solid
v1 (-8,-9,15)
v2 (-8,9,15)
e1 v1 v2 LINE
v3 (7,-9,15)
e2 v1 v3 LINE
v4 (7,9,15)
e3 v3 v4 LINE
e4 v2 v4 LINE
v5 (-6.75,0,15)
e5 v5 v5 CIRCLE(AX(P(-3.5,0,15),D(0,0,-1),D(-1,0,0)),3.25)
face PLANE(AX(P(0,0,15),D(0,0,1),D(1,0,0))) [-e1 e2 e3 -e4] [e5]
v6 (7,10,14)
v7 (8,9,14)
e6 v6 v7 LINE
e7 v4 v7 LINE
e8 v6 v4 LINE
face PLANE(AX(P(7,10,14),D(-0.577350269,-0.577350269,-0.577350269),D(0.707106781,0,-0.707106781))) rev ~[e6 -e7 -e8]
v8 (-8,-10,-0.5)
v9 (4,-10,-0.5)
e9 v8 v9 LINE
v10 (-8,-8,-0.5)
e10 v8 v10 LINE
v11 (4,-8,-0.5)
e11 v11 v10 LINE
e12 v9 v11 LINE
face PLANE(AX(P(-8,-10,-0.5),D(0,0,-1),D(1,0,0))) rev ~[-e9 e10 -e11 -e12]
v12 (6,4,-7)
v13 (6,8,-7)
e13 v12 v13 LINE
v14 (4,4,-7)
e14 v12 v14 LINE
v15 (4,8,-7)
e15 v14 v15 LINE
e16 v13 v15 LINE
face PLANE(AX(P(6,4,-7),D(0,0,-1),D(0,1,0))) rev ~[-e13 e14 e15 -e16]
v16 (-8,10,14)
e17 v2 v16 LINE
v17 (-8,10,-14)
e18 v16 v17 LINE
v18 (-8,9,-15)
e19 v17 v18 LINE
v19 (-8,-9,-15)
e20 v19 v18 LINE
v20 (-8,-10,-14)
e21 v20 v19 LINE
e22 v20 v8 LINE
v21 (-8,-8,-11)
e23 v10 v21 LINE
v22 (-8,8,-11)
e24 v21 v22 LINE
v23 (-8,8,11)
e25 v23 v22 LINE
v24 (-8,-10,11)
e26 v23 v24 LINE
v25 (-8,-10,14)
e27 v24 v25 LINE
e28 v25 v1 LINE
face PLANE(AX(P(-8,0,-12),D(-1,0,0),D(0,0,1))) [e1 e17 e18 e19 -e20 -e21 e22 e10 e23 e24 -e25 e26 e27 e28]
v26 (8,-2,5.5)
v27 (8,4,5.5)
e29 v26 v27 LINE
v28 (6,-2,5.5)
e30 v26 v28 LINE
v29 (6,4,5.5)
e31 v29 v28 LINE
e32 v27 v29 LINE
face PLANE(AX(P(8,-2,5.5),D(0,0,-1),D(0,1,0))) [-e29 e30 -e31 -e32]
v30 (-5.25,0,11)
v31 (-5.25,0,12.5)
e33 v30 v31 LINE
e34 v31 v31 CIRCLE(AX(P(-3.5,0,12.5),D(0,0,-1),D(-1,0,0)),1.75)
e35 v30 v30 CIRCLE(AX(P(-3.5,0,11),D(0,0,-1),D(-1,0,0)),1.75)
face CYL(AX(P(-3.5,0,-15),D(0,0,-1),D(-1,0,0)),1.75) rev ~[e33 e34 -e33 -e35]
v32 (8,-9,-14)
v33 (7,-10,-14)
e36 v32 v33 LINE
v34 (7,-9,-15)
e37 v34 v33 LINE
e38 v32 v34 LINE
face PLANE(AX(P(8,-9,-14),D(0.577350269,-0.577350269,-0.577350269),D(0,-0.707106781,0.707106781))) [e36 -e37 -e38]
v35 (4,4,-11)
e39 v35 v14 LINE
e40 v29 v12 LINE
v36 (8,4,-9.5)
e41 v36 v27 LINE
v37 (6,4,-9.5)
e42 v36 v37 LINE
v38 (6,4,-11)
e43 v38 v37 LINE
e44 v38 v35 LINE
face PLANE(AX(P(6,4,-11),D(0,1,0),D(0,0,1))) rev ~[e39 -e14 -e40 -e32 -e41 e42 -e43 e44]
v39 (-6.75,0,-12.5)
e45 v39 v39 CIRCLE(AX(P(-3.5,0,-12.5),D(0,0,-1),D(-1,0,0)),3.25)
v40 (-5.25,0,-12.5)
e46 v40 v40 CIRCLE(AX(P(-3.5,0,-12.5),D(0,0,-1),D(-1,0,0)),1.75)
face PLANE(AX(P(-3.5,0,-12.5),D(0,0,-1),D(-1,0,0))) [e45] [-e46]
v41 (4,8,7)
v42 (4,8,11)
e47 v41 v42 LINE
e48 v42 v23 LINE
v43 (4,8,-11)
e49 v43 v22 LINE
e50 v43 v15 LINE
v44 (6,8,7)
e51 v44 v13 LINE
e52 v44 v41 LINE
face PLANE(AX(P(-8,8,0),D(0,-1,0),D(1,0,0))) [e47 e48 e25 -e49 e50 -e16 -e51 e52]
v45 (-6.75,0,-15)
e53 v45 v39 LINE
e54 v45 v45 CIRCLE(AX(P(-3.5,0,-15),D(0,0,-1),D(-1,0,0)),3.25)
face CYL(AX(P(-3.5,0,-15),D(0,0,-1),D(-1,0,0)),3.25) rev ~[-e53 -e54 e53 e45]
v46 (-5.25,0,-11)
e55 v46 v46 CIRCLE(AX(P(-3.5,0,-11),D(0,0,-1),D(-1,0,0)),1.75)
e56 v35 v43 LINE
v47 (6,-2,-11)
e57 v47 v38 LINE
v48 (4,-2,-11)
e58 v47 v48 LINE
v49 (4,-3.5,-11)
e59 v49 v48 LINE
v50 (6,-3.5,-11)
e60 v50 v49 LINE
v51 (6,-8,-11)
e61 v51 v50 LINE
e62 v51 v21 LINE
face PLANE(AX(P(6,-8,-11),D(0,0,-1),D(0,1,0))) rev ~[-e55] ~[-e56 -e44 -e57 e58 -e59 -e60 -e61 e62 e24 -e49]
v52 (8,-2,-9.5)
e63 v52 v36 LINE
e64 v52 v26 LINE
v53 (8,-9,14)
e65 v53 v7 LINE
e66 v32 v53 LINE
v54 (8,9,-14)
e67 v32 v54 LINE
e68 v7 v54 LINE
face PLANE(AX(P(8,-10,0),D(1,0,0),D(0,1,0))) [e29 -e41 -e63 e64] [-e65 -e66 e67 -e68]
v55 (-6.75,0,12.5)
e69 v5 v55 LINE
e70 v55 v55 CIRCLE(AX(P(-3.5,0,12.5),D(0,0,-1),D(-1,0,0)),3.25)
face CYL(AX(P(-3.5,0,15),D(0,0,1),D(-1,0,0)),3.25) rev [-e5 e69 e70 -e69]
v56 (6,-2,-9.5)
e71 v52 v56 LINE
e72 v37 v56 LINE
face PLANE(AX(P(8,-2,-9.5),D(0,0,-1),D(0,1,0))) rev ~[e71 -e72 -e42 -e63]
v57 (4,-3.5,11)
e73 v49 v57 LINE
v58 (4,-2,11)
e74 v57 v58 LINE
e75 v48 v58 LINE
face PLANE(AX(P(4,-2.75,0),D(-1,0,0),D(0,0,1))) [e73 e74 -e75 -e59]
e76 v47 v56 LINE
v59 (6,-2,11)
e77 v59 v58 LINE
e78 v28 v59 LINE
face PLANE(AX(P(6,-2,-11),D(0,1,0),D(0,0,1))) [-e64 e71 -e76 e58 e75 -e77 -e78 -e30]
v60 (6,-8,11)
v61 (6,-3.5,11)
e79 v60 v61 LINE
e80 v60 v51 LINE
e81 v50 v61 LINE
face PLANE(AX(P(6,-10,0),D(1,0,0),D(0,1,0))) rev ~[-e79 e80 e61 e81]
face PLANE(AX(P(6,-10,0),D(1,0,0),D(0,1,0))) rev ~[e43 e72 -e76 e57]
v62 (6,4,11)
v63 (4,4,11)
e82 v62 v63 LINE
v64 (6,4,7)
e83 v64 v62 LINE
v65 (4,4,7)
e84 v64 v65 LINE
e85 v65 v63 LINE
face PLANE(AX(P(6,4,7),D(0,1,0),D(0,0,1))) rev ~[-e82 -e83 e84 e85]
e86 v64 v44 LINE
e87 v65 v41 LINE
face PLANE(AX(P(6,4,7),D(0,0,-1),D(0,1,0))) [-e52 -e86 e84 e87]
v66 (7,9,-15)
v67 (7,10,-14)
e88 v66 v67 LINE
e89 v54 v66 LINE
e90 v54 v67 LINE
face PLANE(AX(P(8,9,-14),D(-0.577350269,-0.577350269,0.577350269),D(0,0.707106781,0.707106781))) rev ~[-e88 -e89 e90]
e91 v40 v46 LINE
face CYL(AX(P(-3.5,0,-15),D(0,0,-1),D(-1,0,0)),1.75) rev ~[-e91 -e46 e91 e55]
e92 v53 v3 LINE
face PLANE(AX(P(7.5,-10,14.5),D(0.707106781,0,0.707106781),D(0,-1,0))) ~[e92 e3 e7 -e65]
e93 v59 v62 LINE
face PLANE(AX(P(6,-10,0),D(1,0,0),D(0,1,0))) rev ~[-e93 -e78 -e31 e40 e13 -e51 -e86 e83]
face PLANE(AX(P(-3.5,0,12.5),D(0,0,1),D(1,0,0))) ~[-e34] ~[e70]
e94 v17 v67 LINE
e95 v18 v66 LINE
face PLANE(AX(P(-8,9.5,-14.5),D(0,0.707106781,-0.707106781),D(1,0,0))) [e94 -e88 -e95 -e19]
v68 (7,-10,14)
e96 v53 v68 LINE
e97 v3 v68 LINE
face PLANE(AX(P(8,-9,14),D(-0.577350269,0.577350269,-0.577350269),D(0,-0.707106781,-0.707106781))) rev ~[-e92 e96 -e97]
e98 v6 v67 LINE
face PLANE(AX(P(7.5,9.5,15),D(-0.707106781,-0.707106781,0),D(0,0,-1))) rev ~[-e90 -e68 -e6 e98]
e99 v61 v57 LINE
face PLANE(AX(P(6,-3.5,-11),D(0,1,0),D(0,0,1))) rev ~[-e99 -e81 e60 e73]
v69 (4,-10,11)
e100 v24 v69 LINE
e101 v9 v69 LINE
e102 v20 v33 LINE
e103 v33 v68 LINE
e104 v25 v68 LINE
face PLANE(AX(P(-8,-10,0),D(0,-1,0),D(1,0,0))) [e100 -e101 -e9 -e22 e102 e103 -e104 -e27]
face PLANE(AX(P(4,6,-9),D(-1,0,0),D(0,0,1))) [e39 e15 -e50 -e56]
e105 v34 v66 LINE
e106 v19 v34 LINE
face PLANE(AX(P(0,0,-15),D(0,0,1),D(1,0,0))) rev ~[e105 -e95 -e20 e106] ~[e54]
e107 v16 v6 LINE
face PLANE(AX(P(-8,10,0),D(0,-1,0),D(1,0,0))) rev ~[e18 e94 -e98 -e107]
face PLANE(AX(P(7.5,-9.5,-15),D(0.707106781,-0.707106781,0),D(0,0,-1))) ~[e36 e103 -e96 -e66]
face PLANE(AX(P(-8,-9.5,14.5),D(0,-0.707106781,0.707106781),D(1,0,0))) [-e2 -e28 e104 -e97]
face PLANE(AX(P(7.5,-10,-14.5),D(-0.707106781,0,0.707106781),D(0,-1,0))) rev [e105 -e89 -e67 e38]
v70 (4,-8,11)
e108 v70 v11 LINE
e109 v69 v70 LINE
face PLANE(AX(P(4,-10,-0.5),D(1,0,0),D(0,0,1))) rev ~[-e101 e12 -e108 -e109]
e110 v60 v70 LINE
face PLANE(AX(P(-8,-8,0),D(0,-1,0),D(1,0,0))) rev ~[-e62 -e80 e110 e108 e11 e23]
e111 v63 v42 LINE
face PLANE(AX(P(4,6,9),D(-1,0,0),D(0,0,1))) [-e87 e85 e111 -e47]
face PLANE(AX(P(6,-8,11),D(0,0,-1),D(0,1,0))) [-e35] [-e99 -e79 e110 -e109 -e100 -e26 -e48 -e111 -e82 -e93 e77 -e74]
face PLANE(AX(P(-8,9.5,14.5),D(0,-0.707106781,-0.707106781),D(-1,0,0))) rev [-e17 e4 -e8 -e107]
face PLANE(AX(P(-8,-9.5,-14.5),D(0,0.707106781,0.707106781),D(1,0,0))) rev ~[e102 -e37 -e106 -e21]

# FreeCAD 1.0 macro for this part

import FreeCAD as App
import Part
import Sketcher
Q = App.Units.Quantity


def edges_at(feature, points):
    """Names of the edges that pass closest to the given points."""
    edges = feature.Shape.Edges
    near = lambda p: min(range(len(edges)), key=lambda i: edges[i].distToShape(Part.Vertex(*p))[0])
    return sorted({f"Edge{near(p) + 1}" for p in points})


def faces_at(feature, points):
    """Names of the faces that lie closest to the given points."""
    faces = feature.Shape.Faces
    near = lambda p: min(range(len(faces)), key=lambda i: faces[i].distToShape(Part.Vertex(*p))[0])
    return sorted({f"Face{near(p) + 1}" for p in points})


def add_polygon(sketch, points):
    """Adds a closed chain of lines whose ends are joined by coincident constraints."""
    first, n = sketch.GeometryCount, len(points)
    for a, b in zip(points, points[1:] + points[:1]):
        sketch.addGeometry(Part.LineSegment(App.Vector(*a, 0), App.Vector(*b, 0)), False)
    for i in range(n):
        sketch.addConstraint(Sketcher.Constraint("Coincident", first + i, 2, first + (i + 1) % n, 1))

doc = App.newDocument("Part")
params = doc.addObject("Spreadsheet::Sheet", "Params")
for row, (alias, value) in enumerate([
    ("sketch1_width", "16 mm"),
    ("sketch1_height", "20 mm"),
    ("pad1_length", "30 mm"),
    ("thickness_wall", "2 mm"),
    ("sketch2_width", "16 mm"),
    ("sketch2_height", "2 mm"),
    ("pad2_length", "14 mm"),
    ("sketch3_width", "6 mm"),
    ("sketch3_height", "15 mm"),
    ("chamfer_size", "1 mm"),
    ("sketch4_width", "4 mm"),
    ("sketch4_height", "22 mm"),
    ("sketch4_width2", "1.5 mm"),
    ("pad3_length", "2 mm"),
    ("sketch5_width", "12 mm"),
    ("sketch5_height", "11.5 mm"),
    ("sketch6_diameter", "3.5 mm"),
    ("sketch7_diameter", "6.5 mm"),
    ("pocket4_length", "2.5 mm"),
], start=1):
    params.set(f"A{row}", alias)
    params.set(f"B{row}", "=" + value)
    params.setAlias(f"B{row}", alias)

body = doc.addObject("PartDesign::Body", "Body")

sketch1 = body.newObject("Sketcher::SketchObject", "Sketch")
sketch1.AttachmentSupport = (doc.getObject("XY_Plane"), [""])
sketch1.MapMode = "FlatFace"
add_polygon(sketch1, [(-8, 10), (-8, -10), (8, -10), (8, 10)])
sketch1.addConstraint([
    Sketcher.Constraint("Vertical", 0),
    Sketcher.Constraint("Horizontal", 1),
    Sketcher.Constraint("Vertical", 2),
    Sketcher.Constraint("Horizontal", 3),
    Sketcher.Constraint("Symmetric", 0, 2, 2, 2, -1, 1),
    Sketcher.Constraint("DistanceX", 1, 1, 1, 2, Q("16 mm")),
    Sketcher.Constraint("DistanceY", 0, 2, 0, 1, Q("20 mm")),
])
sketch1.setExpression("Constraints[9]", "Params.sketch1_width")
sketch1.setExpression("Constraints[10]", "Params.sketch1_height")
pad1 = body.newObject("PartDesign::Pad", "Pad")
pad1.Profile = sketch1
pad1.setExpression("Length", "Params.pad1_length")
pad1.Midplane = True
doc.recompute()

thickness = body.newObject("PartDesign::Thickness", "Thickness")
thickness.Base = (pad1, faces_at(pad1, [(-8, 0, 0)]))
thickness.setExpression("Value", "Params.thickness_wall")
thickness.Reversed = True
thickness.Join = "Intersection"

sketch2 = body.newObject("Sketcher::SketchObject", "Sketch001")
sketch2.AttachmentSupport = (doc.getObject("YZ_Plane"), [""])
sketch2.MapMode = "FlatFace"
sketch2.AttachmentOffset = App.Placement(App.Vector(0, 0, 6), App.Rotation())
add_polygon(sketch2, [(8, -13), (-8, -13), (-8, -11), (8, -11)])
add_polygon(sketch2, [(8, 11), (-8, 11), (-8, 13), (8, 13)])
sketch2.addConstraint([
    Sketcher.Constraint("Horizontal", 0),
    Sketcher.Constraint("Vertical", 1),
    Sketcher.Constraint("Horizontal", 2),
    Sketcher.Constraint("Vertical", 3),
    Sketcher.Constraint("Horizontal", 4),
    Sketcher.Constraint("Vertical", 5),
    Sketcher.Constraint("Horizontal", 6),
    Sketcher.Constraint("Vertical", 7),
    Sketcher.Constraint("Symmetric", 2, 2, 4, 2, -1, 1),
    Sketcher.Constraint("Symmetric", 0, 2, 6, 2, -1, 1),
    Sketcher.Constraint("Vertical", 1, 2, 4, 2),
    Sketcher.Constraint("DistanceX", 0, 2, 0, 1, Q("16 mm")),
    Sketcher.Constraint("DistanceY", 1, 1, 1, 2, Q("2 mm")),
    Sketcher.Constraint("DistanceY", 0, 2, -1, 1, Q("13 mm")),
])
sketch2.setExpression("Constraints[19]", "Params.sketch2_width")
sketch2.setExpression("Constraints[20]", "Params.sketch2_height")
pad2 = body.newObject("PartDesign::Pad", "Pad001")
pad2.Profile = sketch2
pad2.setExpression("Length", "Params.pad2_length")
pad2.Reversed = True

sketch3 = body.newObject("Sketcher::SketchObject", "Sketch002")
sketch3.AttachmentSupport = (doc.getObject("YZ_Plane"), [""])
sketch3.MapMode = "FlatFace"
sketch3.AttachmentOffset = App.Placement(App.Vector(0, 0, 8), App.Rotation())
add_polygon(sketch3, [(4, -10), (-2, -10), (-2, 6), (4, 6)])
sketch3.addConstraint([
    Sketcher.Constraint("Horizontal", 0),
    Sketcher.Constraint("Vertical", 1),
    Sketcher.Constraint("Horizontal", 2),
    Sketcher.Constraint("Vertical", 3),
    Sketcher.Constraint("DistanceX", 0, 2, 0, 1, Q("6 mm")),
    Sketcher.Constraint("DistanceY", 1, 1, 1, 2, Q("15 mm")),
    Sketcher.Constraint("DistanceX", 0, 2, -1, 1, Q("2 mm")),
    Sketcher.Constraint("DistanceY", 0, 2, -1, 1, Q("9.5 mm")),
])
sketch3.setExpression("Constraints[8]", "Params.sketch3_width")
sketch3.setExpression("Constraints[9]", "Params.sketch3_height")
pocket1 = body.newObject("PartDesign::Pocket", "Pocket")
pocket1.Profile = sketch3
pocket1.Type = "UpToFirst"
doc.recompute()

chamfer = body.newObject("PartDesign::Chamfer", "Chamfer")
chamfer.Base = (pocket1, edges_at(pocket1, [
    (0, -10, 15),
    (8, 0, 15),
    (0, -10, -15),
    (0, 10, -15),
    (8, 0, -15),
    (0, 10, 15),
    (8, -10, 0),
    (8, 10, 0),
]))
chamfer.setExpression("Size", "Params.chamfer_size")

sketch4 = body.newObject("Sketcher::SketchObject", "Sketch003")
sketch4.AttachmentSupport = (doc.getObject("YZ_Plane"), [""])
sketch4.MapMode = "FlatFace"
sketch4.AttachmentOffset = App.Placement(App.Vector(0, 0, 6), App.Rotation())
add_polygon(sketch4, [(8, -11), (4, -11), (4, -7), (8, -7)])
add_polygon(sketch4, [(8, 7), (4, 7), (4, 11), (8, 11)])
add_polygon(sketch4, [(-2, -11), (-3.5, -11), (-3.5, 11), (-2, 11)])
sketch4.addConstraint([
    Sketcher.Constraint("Horizontal", 0),
    Sketcher.Constraint("Vertical", 1),
    Sketcher.Constraint("Horizontal", 2),
    Sketcher.Constraint("Vertical", 3),
    Sketcher.Constraint("Horizontal", 4),
    Sketcher.Constraint("Vertical", 5),
    Sketcher.Constraint("Horizontal", 6),
    Sketcher.Constraint("Vertical", 7),
    Sketcher.Constraint("Horizontal", 8),
    Sketcher.Constraint("Vertical", 9),
    Sketcher.Constraint("Horizontal", 10),
    Sketcher.Constraint("Vertical", 11),
    Sketcher.Constraint("Symmetric", 1, 2, 4, 2, -1),
    Sketcher.Constraint("Symmetric", 3, 2, 6, 2, -1),
    Sketcher.Constraint("Horizontal", 3, 2, 8, 2),
    Sketcher.Constraint("Horizontal", 6, 2, 9, 2),
    Sketcher.Constraint("Equal", 6, 1),
    Sketcher.Constraint("DistanceX", 0, 2, 0, 1, Q("4 mm")),
    Sketcher.Constraint("DistanceY", 9, 1, 9, 2, Q("22 mm")),
    Sketcher.Constraint("DistanceX", 8, 2, 8, 1, Q("1.5 mm")),
    Sketcher.Constraint("DistanceX", -1, 1, 0, 2, Q("4 mm")),
    Sketcher.Constraint("DistanceX", 10, 2, -1, 1, Q("2 mm")),
])
sketch4.setExpression("Constraints[29]", "Params.sketch4_width")
sketch4.setExpression("Constraints[30]", "Params.sketch4_height")
sketch4.setExpression("Constraints[31]", "Params.sketch4_width2")
pad3 = body.newObject("PartDesign::Pad", "Pad002")
pad3.Profile = sketch4
pad3.setExpression("Length", "Params.pad3_length")
pad3.Reversed = True

sketch5 = body.newObject("Sketcher::SketchObject", "Sketch004")
sketch5.AttachmentSupport = (doc.getObject("XZ_Plane"), [""])
sketch5.MapMode = "FlatFace"
sketch5.AttachmentOffset = App.Placement(App.Vector(0, 0, 10), App.Rotation())
add_polygon(sketch5, [(-8, 11), (-8, 0), (4, 0), (4, 11)])
sketch5.addConstraint([
    Sketcher.Constraint("Vertical", 0),
    Sketcher.Constraint("Horizontal", 1),
    Sketcher.Constraint("Vertical", 2),
    Sketcher.Constraint("Horizontal", 3),
    Sketcher.Constraint("DistanceX", 1, 1, 1, 2, Q("12 mm")),
    Sketcher.Constraint("DistanceY", 0, 2, 0, 1, Q("11.5 mm")),
    Sketcher.Constraint("DistanceX", 0, 2, -1, 1, Q("8 mm")),
    Sketcher.Constraint("DistanceY", -1, 1, 2, 2, Q("11 mm")),
])
sketch5.setExpression("Constraints[8]", "Params.sketch5_width")
sketch5.setExpression("Constraints[9]", "Params.sketch5_height")
pocket2 = body.newObject("PartDesign::Pocket", "Pocket001")
pocket2.Profile = sketch5
pocket2.Type = "UpToFirst"

sketch6 = body.newObject("Sketcher::SketchObject", "Sketch005")
sketch6.AttachmentSupport = (doc.getObject("XY_Plane"), [""])
sketch6.MapMode = "FlatFace"
sketch6.AttachmentOffset = App.Placement(App.Vector(0, 0, -15), App.Rotation())
sketch6.addGeometry(Part.Circle(App.Vector(-3.5, 0, 0), App.Vector(0, 0, 1), 1.8), False)
sketch6.addConstraint([
    Sketcher.Constraint("PointOnObject", 0, 3, -1),
    Sketcher.Constraint("Diameter", 0, Q("3.5 mm")),
    Sketcher.Constraint("DistanceX", 0, 3, -1, 1, Q("3.5 mm")),
])
sketch6.setExpression("Constraints[1]", "Params.sketch6_diameter")
pocket3 = body.newObject("PartDesign::Pocket", "Pocket002")
pocket3.Profile = sketch6
pocket3.Type = "ThroughAll"
pocket3.Reversed = True

sketch7 = body.newObject("Sketcher::SketchObject", "Sketch006")
sketch7.AttachmentSupport = (doc.getObject("XY_Plane"), [""])
sketch7.MapMode = "FlatFace"
sketch7.AttachmentOffset = App.Placement(App.Vector(0, 0, -15), App.Rotation())
sketch7.addGeometry(Part.Circle(App.Vector(-3.5, 0, 0), App.Vector(0, 0, 1), 3.2), False)
sketch7.addConstraint([
    Sketcher.Constraint("PointOnObject", 0, 3, -1),
    Sketcher.Constraint("Diameter", 0, Q("6.5 mm")),
    Sketcher.Constraint("DistanceX", 0, 3, -1, 1, Q("3.5 mm")),
])
sketch7.setExpression("Constraints[1]", "Params.sketch7_diameter")
pocket4 = body.newObject("PartDesign::Pocket", "Pocket003")
pocket4.Profile = sketch7
pocket4.setExpression("Length", "Params.pocket4_length")
pocket4.Reversed = True
doc.recompute()

mirrored = body.newObject("PartDesign::Mirrored", "Mirrored")
mirrored.Originals = [pocket4]
mirrored.MirrorPlane = (doc.getObject("XY_Plane"), [""])
body.Tip = mirrored

doc.recompute()
